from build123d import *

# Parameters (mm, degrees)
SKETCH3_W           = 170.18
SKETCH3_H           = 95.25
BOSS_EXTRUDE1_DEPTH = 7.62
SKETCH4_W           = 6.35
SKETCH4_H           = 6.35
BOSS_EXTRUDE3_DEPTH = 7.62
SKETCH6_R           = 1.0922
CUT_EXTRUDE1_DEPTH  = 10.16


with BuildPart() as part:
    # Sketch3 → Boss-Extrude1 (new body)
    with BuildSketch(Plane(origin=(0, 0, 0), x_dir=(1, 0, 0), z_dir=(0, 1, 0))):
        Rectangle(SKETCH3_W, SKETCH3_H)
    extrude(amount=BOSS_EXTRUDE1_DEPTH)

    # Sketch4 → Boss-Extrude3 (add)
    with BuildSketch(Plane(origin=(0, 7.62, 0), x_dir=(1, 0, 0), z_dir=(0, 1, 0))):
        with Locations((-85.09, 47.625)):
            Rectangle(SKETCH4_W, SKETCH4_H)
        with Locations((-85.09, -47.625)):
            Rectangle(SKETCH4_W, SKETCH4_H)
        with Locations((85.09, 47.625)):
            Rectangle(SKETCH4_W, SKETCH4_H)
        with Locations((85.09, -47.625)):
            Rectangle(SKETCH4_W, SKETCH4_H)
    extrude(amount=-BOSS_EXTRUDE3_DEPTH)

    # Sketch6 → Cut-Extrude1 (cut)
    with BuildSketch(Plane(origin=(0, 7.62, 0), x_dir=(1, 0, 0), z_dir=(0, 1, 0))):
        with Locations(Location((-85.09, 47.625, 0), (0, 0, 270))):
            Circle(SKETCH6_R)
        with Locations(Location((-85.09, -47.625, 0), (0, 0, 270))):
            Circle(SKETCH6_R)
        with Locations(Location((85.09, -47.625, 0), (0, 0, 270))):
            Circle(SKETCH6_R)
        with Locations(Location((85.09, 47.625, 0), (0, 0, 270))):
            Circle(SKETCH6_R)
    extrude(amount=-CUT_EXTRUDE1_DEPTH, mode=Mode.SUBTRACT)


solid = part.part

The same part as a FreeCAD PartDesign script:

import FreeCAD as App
import Part
import Sketcher
from FreeCAD import Vector
Q = App.Units.Quantity


def add_polygon(sketch, points):
    """Adds a closed chain of lines whose ends are joined by coincident constraints."""
    first, n = sketch.GeometryCount, len(points)
    for a, b in zip(points, points[1:] + points[:1]):
        sketch.addGeometry(Part.LineSegment(App.Vector(*a, 0), App.Vector(*b, 0)), False)
    for i in range(n):
        sketch.addConstraint(Sketcher.Constraint("Coincident", first + i, 2, first + (i + 1) % n, 1))

doc = App.newDocument("Part")
params = doc.addObject("Spreadsheet::Sheet", "Params")
for row, (alias, value) in enumerate([
    ("sketch1_width", "6.7 in"),
    ("sketch1_height", "3.75 in"),
    ("pad1_length", "0.3 in"),
    ("sketch2_width", "0.25 in"),
    ("pad2_length", "0.3 in"),
    ("sketch3_diameter", "0.086 in"),
    ("pocket1_length", "0.4 in"),
], start=1):
    params.set(f"A{row}", alias)
    params.set(f"B{row}", "=" + value)
    params.setAlias(f"B{row}", alias)

body = doc.addObject("PartDesign::Body", "Body")

# Sketch on XZ plane
sketch1 = doc.addObject("Sketcher::SketchObject", "Sketch")
body.addObject(sketch1)
sketch1.AttachmentSupport = (doc.XZ_Plane, [""])
sketch1.MapMode = "FlatFace"
add_polygon(sketch1, [(-85, -48), (-85, 48), (85, 48), (85, -48)])  # lines 0-3
sketch1.addConstraint(Sketcher.Constraint("Vertical", 0))
sketch1.addConstraint(Sketcher.Constraint("Horizontal", 1))
sketch1.addConstraint(Sketcher.Constraint("Vertical", 2))
sketch1.addConstraint(Sketcher.Constraint("Horizontal", 3))
sketch1.addConstraint(Sketcher.Constraint("Symmetric", 0, 2, 2, 2, -1, 1))
sketch1.addConstraint(Sketcher.Constraint("DistanceX", 1, 1, 1, 2, Q("6.7 in")))
sketch1.addConstraint(Sketcher.Constraint("DistanceY", 0, 1, 0, 2, Q("3.75 in")))
sketch1.setExpression("Constraints[9]", "Params.sketch1_width")
sketch1.setExpression("Constraints[10]", "Params.sketch1_height")
pad1 = doc.addObject("PartDesign::Pad", "Pad")
body.addObject(pad1)
pad1.Profile = sketch1
pad1.setExpression("Length", "Params.pad1_length")
pad1.Reversed = True

# Sketch on XZ plane
sketch2 = doc.addObject("Sketcher::SketchObject", "Sketch001")
body.addObject(sketch2)
sketch2.AttachmentSupport = (doc.XZ_Plane, [""])
sketch2.MapMode = "FlatFace"
sketch2.AttachmentOffset = App.Placement(Vector(0, 0, -0.3 * 25.4), App.Rotation())
add_polygon(sketch2, [(-88, -51), (-88, -44), (-82, -44), (-82, -51)])  # lines 0-3
add_polygon(sketch2, [(-88, 44), (-88, 51), (-82, 51), (-82, 44)])  # lines 4-7
add_polygon(sketch2, [(82, -51), (82, -44), (88, -44), (88, -51)])  # lines 8-11
add_polygon(sketch2, [(82, 44), (82, 51), (88, 51), (88, 44)])  # lines 12-15
sketch2.addConstraint(Sketcher.Constraint("Vertical", 0))
sketch2.addConstraint(Sketcher.Constraint("Horizontal", 1))
sketch2.addConstraint(Sketcher.Constraint("Vertical", 2))
sketch2.addConstraint(Sketcher.Constraint("Horizontal", 3))
sketch2.addConstraint(Sketcher.Constraint("Vertical", 4))
sketch2.addConstraint(Sketcher.Constraint("Horizontal", 5))
sketch2.addConstraint(Sketcher.Constraint("Vertical", 6))
sketch2.addConstraint(Sketcher.Constraint("Horizontal", 7))
sketch2.addConstraint(Sketcher.Constraint("Vertical", 8))
sketch2.addConstraint(Sketcher.Constraint("Horizontal", 9))
sketch2.addConstraint(Sketcher.Constraint("Vertical", 10))
sketch2.addConstraint(Sketcher.Constraint("Horizontal", 11))
sketch2.addConstraint(Sketcher.Constraint("Vertical", 12))
sketch2.addConstraint(Sketcher.Constraint("Horizontal", 13))
sketch2.addConstraint(Sketcher.Constraint("Vertical", 14))
sketch2.addConstraint(Sketcher.Constraint("Horizontal", 15))
sketch2.addConstraint(Sketcher.Constraint("Symmetric", 6, 2, 8, 2, -1, 1))
sketch2.addConstraint(Sketcher.Constraint("Symmetric", 4, 2, 10, 2, -1, 1))
sketch2.addConstraint(Sketcher.Constraint("Symmetric", 2, 2, 12, 2, -1, 1))
sketch2.addConstraint(Sketcher.Constraint("Symmetric", 0, 2, 14, 2, -1, 1))
sketch2.addConstraint(Sketcher.Constraint("Symmetric", 1, 2, 8, 2, -2))
sketch2.addConstraint(Sketcher.Constraint("Symmetric", 3, 2, 10, 2, -2))
sketch2.addConstraint(Sketcher.Constraint("Equal", 15, 0))
sketch2.addConstraint(Sketcher.Constraint("DistanceY", 2, 2, -1, 1, Q("2 in")))
sketch2.addConstraint(Sketcher.Constraint("DistanceX", 1, 1, 1, 2, Q("0.25 in")))
sketch2.addConstraint(Sketcher.Constraint("DistanceX", 0, 2, 8, 2, Q("6.7 in")))
sketch2.setExpression("Constraints[40]", "Params.sketch2_width")
pad2 = doc.addObject("PartDesign::Pad", "Pad001")
body.addObject(pad2)
pad2.Profile = sketch2
pad2.setExpression("Length", "Params.pad2_length")

# Sketch on XZ plane
sketch3 = doc.addObject("Sketcher::SketchObject", "Sketch002")
body.addObject(sketch3)
sketch3.AttachmentSupport = (doc.XZ_Plane, [""])
sketch3.MapMode = "FlatFace"
sketch3.AttachmentOffset = App.Placement(Vector(0, 0, -0.3 * 25.4), App.Rotation())
sketch3.addGeometry(Part.Circle(Vector(-85.1, -47.6, 0), Vector(0, 0, 1), 1.1), False)
sketch3.addGeometry(Part.Circle(Vector(-85.1, 47.6, 0), Vector(0, 0, 1), 1.1), False)
sketch3.addGeometry(Part.Circle(Vector(85.1, 47.6, 0), Vector(0, 0, 1), 1.1), False)
sketch3.addGeometry(Part.Circle(Vector(85.1, -47.6, 0), Vector(0, 0, 1), 1.1), False)
sketch3.addConstraint(Sketcher.Constraint("Equal", 0, 1))
sketch3.addConstraint(Sketcher.Constraint("Equal", 1, 2))
sketch3.addConstraint(Sketcher.Constraint("Equal", 2, 3))
sketch3.addConstraint(Sketcher.Constraint("Symmetric", 0, 3, 2, 3, -1, 1))
sketch3.addConstraint(Sketcher.Constraint("Symmetric", 1, 3, 3, 3, -1, 1))
sketch3.addConstraint(Sketcher.Constraint("Symmetric", 1, 3, 2, 3, -2))
sketch3.addConstraint(Sketcher.Constraint("Diameter", 0, Q("0.086 in")))
sketch3.addConstraint(Sketcher.Constraint("DistanceX", 1, 3, 2, 3, Q("6.7 in")))
sketch3.addConstraint(Sketcher.Constraint("DistanceY", 0, 3, 1, 3, Q("3.75 in")))
sketch3.setExpression("Constraints[6]", "Params.sketch3_diameter")
pocket1 = doc.addObject("PartDesign::Pocket", "Pocket")
body.addObject(pocket1)
pocket1.Profile = sketch3
pocket1.setExpression("Length", "Params.pocket1_length")
pocket1.Reversed = True

doc.recompute()
